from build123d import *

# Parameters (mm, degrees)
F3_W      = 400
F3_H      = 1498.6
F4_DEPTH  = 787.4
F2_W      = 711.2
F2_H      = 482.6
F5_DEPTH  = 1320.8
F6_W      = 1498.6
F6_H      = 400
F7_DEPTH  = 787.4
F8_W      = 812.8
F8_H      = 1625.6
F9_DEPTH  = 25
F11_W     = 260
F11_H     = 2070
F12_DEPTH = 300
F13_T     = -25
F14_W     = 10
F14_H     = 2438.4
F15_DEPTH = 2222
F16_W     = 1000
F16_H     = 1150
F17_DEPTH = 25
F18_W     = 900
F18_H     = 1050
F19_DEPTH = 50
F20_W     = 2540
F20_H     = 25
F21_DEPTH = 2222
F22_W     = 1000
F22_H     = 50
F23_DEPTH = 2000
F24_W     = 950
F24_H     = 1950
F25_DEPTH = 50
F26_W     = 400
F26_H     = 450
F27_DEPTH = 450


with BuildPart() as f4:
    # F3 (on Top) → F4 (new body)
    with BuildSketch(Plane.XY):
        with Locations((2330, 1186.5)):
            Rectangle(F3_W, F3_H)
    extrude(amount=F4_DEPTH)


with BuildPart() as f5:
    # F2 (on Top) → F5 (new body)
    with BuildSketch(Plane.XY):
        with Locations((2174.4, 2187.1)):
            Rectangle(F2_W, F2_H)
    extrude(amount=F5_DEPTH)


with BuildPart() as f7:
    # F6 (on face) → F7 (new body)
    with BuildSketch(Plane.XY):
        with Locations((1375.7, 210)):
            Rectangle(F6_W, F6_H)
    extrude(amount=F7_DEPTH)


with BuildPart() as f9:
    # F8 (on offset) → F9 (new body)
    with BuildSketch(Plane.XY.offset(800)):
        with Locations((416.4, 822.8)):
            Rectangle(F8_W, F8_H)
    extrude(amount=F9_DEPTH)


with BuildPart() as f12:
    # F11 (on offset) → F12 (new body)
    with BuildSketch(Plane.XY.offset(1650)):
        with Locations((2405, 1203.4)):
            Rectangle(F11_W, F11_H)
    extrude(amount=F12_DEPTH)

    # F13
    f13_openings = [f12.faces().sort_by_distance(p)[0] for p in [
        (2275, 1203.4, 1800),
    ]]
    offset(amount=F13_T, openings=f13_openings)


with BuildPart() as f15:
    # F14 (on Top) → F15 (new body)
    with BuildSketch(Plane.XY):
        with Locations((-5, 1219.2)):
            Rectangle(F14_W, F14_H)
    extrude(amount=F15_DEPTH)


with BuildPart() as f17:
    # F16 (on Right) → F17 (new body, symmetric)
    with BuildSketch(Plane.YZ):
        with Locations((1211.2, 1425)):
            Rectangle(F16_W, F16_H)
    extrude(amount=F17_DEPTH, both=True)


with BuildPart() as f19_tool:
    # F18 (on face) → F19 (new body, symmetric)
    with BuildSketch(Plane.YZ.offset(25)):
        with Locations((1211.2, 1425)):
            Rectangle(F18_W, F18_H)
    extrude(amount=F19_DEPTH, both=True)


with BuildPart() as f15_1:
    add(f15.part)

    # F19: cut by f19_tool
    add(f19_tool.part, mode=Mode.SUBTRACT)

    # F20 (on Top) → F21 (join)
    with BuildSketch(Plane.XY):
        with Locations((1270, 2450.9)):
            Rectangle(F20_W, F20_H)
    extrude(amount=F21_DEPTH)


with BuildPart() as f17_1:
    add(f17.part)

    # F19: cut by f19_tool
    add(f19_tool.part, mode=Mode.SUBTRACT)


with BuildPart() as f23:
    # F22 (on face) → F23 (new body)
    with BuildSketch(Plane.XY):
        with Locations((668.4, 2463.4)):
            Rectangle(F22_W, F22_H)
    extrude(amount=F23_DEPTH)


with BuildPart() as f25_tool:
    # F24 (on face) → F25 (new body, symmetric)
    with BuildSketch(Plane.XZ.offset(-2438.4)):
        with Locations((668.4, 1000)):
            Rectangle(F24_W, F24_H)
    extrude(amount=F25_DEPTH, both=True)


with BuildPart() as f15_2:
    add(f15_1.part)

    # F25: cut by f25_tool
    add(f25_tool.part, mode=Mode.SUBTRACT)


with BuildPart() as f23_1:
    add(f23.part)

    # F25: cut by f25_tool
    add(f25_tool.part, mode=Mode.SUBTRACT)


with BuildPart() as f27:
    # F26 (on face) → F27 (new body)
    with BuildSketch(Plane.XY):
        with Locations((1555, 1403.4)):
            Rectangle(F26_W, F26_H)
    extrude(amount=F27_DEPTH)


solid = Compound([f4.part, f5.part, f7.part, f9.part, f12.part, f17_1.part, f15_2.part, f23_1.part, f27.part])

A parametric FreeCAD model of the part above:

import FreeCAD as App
import Part
import Sketcher

V = App.Vector


def faces_at(feature, points):
    """Names of the faces that lie closest to the given points."""
    faces = feature.Shape.Faces
    near = lambda p: min(range(len(faces)), key=lambda i: faces[i].distToShape(Part.Vertex(*p))[0])
    return sorted({f"Face{near(p) + 1}" for p in points})

doc = App.newDocument("Part")
params = doc.addObject("Spreadsheet::Sheet", "Params")
for row, (alias, value) in enumerate([
    ("sketch1_width", "400 mm"),
    ("sketch1_height", "1498.6 mm"),
    ("pad1_length", "787.4 mm"),
    ("sketch2_width", "711.2 mm"),
    ("sketch2_height", "482.6 mm"),
    ("pad2_length", "1320.8 mm"),
    ("sketch3_height", "400 mm"),
    ("sketch3_width", "1498.6 mm"),
    ("pad3_length", "787.4 mm"),
    ("sketch4_width", "812.8 mm"),
    ("sketch4_height", "1625.6 mm"),
    ("pad4_length", "25 mm"),
    ("sketch5_width", "260 mm"),
    ("sketch5_height", "2070 mm"),
    ("pad5_length", "300 mm"),
    ("thickness_wall", "25 mm"),
    ("sketch6_width", "10 mm"),
    ("sketch6_height", "2438.4 mm"),
    ("pad6_length", "2222 mm"),
    ("sketch7_width", "1000 mm"),
    ("sketch7_height", "1150 mm"),
    ("pad7_length", "50 mm"),
    ("sketch8_width", "900 mm"),
    ("sketch8_height", "1050 mm"),
    ("pad8_length", "100 mm"),
    ("sketch9_width", "2540 mm"),
    ("sketch9_height", "25 mm"),
    ("pad9_length", "2222 mm"),
    ("sketch10_width", "1000 mm"),
    ("sketch10_height", "50 mm"),
    ("pad10_length", "2000 mm"),
    ("sketch11_width", "950 mm"),
    ("sketch11_height", "1950 mm"),
    ("pad11_length", "100 mm"),
    ("sketch12_width", "400 mm"),
    ("sketch12_height", "450 mm"),
    ("pad12_length", "450 mm"),
], start=1):
    params.set(f"A{row}", alias)
    params.set(f"B{row}", "=" + value)
    params.setAlias(f"B{row}", alias)

body = doc.addObject("PartDesign::Body", "Body")

# Sketch on XY plane
sketch1 = doc.addObject("Sketcher::SketchObject", "Sketch")
body.addObject(sketch1)
sketch1.AttachmentSupport = (doc.XY_Plane, [""])
sketch1.MapMode = "FlatFace"
sketch1.addGeometry(Part.LineSegment(V(2130, 1936, 0), V(2130, 437, 0)), False)
sketch1.addGeometry(Part.LineSegment(V(2130, 437, 0), V(2530, 437, 0)), False)
sketch1.addGeometry(Part.LineSegment(V(2530, 437, 0), V(2530, 1936, 0)), False)
sketch1.addGeometry(Part.LineSegment(V(2530, 1936, 0), V(2130, 1936, 0)), False)
sketch1.addConstraint(Sketcher.Constraint("Coincident", 0, 2, 1, 1))
sketch1.addConstraint(Sketcher.Constraint("Coincident", 1, 2, 2, 1))
sketch1.addConstraint(Sketcher.Constraint("Coincident", 2, 2, 3, 1))
sketch1.addConstraint(Sketcher.Constraint("Coincident", 3, 2, 0, 1))
sketch1.addConstraint(Sketcher.Constraint("Vertical", 0))
sketch1.addConstraint(Sketcher.Constraint("Horizontal", 1))
sketch1.addConstraint(Sketcher.Constraint("Vertical", 2))
sketch1.addConstraint(Sketcher.Constraint("Horizontal", 3))
sketch1.addConstraint(Sketcher.Constraint("DistanceX", 1, 1, 1, 2, 400.0))
sketch1.addConstraint(Sketcher.Constraint("DistanceY", 0, 2, 0, 1, 1498.6))
sketch1.addConstraint(Sketcher.Constraint("DistanceX", -1, 1, 0, 2, 2130.0))
sketch1.addConstraint(Sketcher.Constraint("DistanceY", -1, 1, 0, 2, 437.2))
sketch1.setExpression("Constraints[8]", "Params.sketch1_width")
sketch1.setExpression("Constraints[9]", "Params.sketch1_height")
pad1 = doc.addObject("PartDesign::Pad", "Pad")
body.addObject(pad1)
pad1.Profile = sketch1
pad1.setExpression("Length", "Params.pad1_length")
body2 = doc.addObject("PartDesign::Body", "Body001")

# Sketch on XY plane
sketch2 = doc.addObject("Sketcher::SketchObject", "Sketch001")
body2.addObject(sketch2)
sketch2.AttachmentSupport = (doc.getObject("XY_Plane001"), [""])
sketch2.MapMode = "FlatFace"
sketch2.addGeometry(Part.LineSegment(V(1819, 2428, 0), V(1819, 1946, 0)), False)
sketch2.addGeometry(Part.LineSegment(V(1819, 1946, 0), V(2530, 1946, 0)), False)
sketch2.addGeometry(Part.LineSegment(V(2530, 1946, 0), V(2530, 2428, 0)), False)
sketch2.addGeometry(Part.LineSegment(V(2530, 2428, 0), V(1819, 2428, 0)), False)
sketch2.addConstraint(Sketcher.Constraint("Coincident", 0, 2, 1, 1))
sketch2.addConstraint(Sketcher.Constraint("Coincident", 1, 2, 2, 1))
sketch2.addConstraint(Sketcher.Constraint("Coincident", 2, 2, 3, 1))
sketch2.addConstraint(Sketcher.Constraint("Coincident", 3, 2, 0, 1))
sketch2.addConstraint(Sketcher.Constraint("Vertical", 0))
sketch2.addConstraint(Sketcher.Constraint("Horizontal", 1))
sketch2.addConstraint(Sketcher.Constraint("Vertical", 2))
sketch2.addConstraint(Sketcher.Constraint("Horizontal", 3))
sketch2.addConstraint(Sketcher.Constraint("DistanceX", 1, 1, 1, 2, 711.2))
sketch2.addConstraint(Sketcher.Constraint("DistanceY", 0, 2, 0, 1, 482.6))
sketch2.addConstraint(Sketcher.Constraint("DistanceX", -1, 1, 1, 2, 2530.0))
sketch2.addConstraint(Sketcher.Constraint("DistanceY", -1, 1, 0, 2, 1945.8))
sketch2.setExpression("Constraints[8]", "Params.sketch2_width")
sketch2.setExpression("Constraints[9]", "Params.sketch2_height")
pad2 = doc.addObject("PartDesign::Pad", "Pad001")
body2.addObject(pad2)
pad2.Profile = sketch2
pad2.setExpression("Length", "Params.pad2_length")
body3 = doc.addObject("PartDesign::Body", "Body002")

# Sketch on XY plane
sketch3 = doc.addObject("Sketcher::SketchObject", "Sketch002")
body3.addObject(sketch3)
sketch3.AttachmentSupport = (doc.getObject("XY_Plane002"), [""])
sketch3.MapMode = "FlatFace"
sketch3.addGeometry(Part.LineSegment(V(626, 410, 0), V(626, 10, 0)), False)
sketch3.addGeometry(Part.LineSegment(V(626, 10, 0), V(2125, 10, 0)), False)
sketch3.addGeometry(Part.LineSegment(V(2125, 10, 0), V(2125, 410, 0)), False)
sketch3.addGeometry(Part.LineSegment(V(2125, 410, 0), V(626, 410, 0)), False)
sketch3.addConstraint(Sketcher.Constraint("Coincident", 0, 2, 1, 1))
sketch3.addConstraint(Sketcher.Constraint("Coincident", 1, 2, 2, 1))
sketch3.addConstraint(Sketcher.Constraint("Coincident", 2, 2, 3, 1))
sketch3.addConstraint(Sketcher.Constraint("Coincident", 3, 2, 0, 1))
sketch3.addConstraint(Sketcher.Constraint("Vertical", 0))
sketch3.addConstraint(Sketcher.Constraint("Horizontal", 1))
sketch3.addConstraint(Sketcher.Constraint("Vertical", 2))
sketch3.addConstraint(Sketcher.Constraint("Horizontal", 3))
sketch3.addConstraint(Sketcher.Constraint("DistanceY", 0, 2, 0, 1, 400.0))
sketch3.addConstraint(Sketcher.Constraint("DistanceX", 1, 1, 1, 2, 1498.6))
sketch3.addConstraint(Sketcher.Constraint("DistanceY", -1, 1, 0, 2, 10.0))
sketch3.addConstraint(Sketcher.Constraint("DistanceX", -1, 1, 1, 2, 2125.0))
sketch3.setExpression("Constraints[8]", "Params.sketch3_height")
sketch3.setExpression("Constraints[9]", "Params.sketch3_width")
pad3 = doc.addObject("PartDesign::Pad", "Pad002")
body3.addObject(pad3)
pad3.Profile = sketch3
pad3.setExpression("Length", "Params.pad3_length")
body4 = doc.addObject("PartDesign::Body", "Body003")

# Sketch on XY plane
sketch4 = doc.addObject("Sketcher::SketchObject", "Sketch003")
body4.addObject(sketch4)
sketch4.AttachmentSupport = (doc.getObject("XY_Plane003"), [""])
sketch4.MapMode = "FlatFace"
sketch4.AttachmentOffset = App.Placement(V(0, 0, 800), App.Rotation())
sketch4.addGeometry(Part.LineSegment(V(10, 1636, 0), V(10, 10, 0)), False)
sketch4.addGeometry(Part.LineSegment(V(10, 10, 0), V(823, 10, 0)), False)
sketch4.addGeometry(Part.LineSegment(V(823, 10, 0), V(823, 1636, 0)), False)
sketch4.addGeometry(Part.LineSegment(V(823, 1636, 0), V(10, 1636, 0)), False)
sketch4.addConstraint(Sketcher.Constraint("Coincident", 0, 2, 1, 1))
sketch4.addConstraint(Sketcher.Constraint("Coincident", 1, 2, 2, 1))
sketch4.addConstraint(Sketcher.Constraint("Coincident", 2, 2, 3, 1))
sketch4.addConstraint(Sketcher.Constraint("Coincident", 3, 2, 0, 1))
sketch4.addConstraint(Sketcher.Constraint("Vertical", 0))
sketch4.addConstraint(Sketcher.Constraint("Horizontal", 1))
sketch4.addConstraint(Sketcher.Constraint("Vertical", 2))
sketch4.addConstraint(Sketcher.Constraint("Horizontal", 3))
sketch4.addConstraint(Sketcher.Constraint("DistanceX", 1, 1, 1, 2, 812.8))
sketch4.addConstraint(Sketcher.Constraint("DistanceY", 0, 2, 0, 1, 1625.6))
sketch4.addConstraint(Sketcher.Constraint("DistanceX", -1, 1, 0, 2, 10.0))
sketch4.addConstraint(Sketcher.Constraint("DistanceY", -1, 1, 0, 2, 10.0))
sketch4.setExpression("Constraints[8]", "Params.sketch4_width")
sketch4.setExpression("Constraints[9]", "Params.sketch4_height")
pad4 = doc.addObject("PartDesign::Pad", "Pad003")
body4.addObject(pad4)
pad4.Profile = sketch4
pad4.setExpression("Length", "Params.pad4_length")
body5 = doc.addObject("PartDesign::Body", "Body004")

# Sketch on XY plane
sketch5 = doc.addObject("Sketcher::SketchObject", "Sketch004")
body5.addObject(sketch5)
sketch5.AttachmentSupport = (doc.getObject("XY_Plane004"), [""])
sketch5.MapMode = "FlatFace"
sketch5.AttachmentOffset = App.Placement(V(0, 0, 1650), App.Rotation())
sketch5.addGeometry(Part.LineSegment(V(2275, 2238, 0), V(2275, 168, 0)), False)
sketch5.addGeometry(Part.LineSegment(V(2275, 168, 0), V(2535, 168, 0)), False)
sketch5.addGeometry(Part.LineSegment(V(2535, 168, 0), V(2535, 2238, 0)), False)
sketch5.addGeometry(Part.LineSegment(V(2535, 2238, 0), V(2275, 2238, 0)), False)
sketch5.addConstraint(Sketcher.Constraint("Coincident", 0, 2, 1, 1))
sketch5.addConstraint(Sketcher.Constraint("Coincident", 1, 2, 2, 1))
sketch5.addConstraint(Sketcher.Constraint("Coincident", 2, 2, 3, 1))
sketch5.addConstraint(Sketcher.Constraint("Coincident", 3, 2, 0, 1))
sketch5.addConstraint(Sketcher.Constraint("Vertical", 0))
sketch5.addConstraint(Sketcher.Constraint("Horizontal", 1))
sketch5.addConstraint(Sketcher.Constraint("Vertical", 2))
sketch5.addConstraint(Sketcher.Constraint("Horizontal", 3))
sketch5.addConstraint(Sketcher.Constraint("DistanceX", 1, 1, 1, 2, 260.0))
sketch5.addConstraint(Sketcher.Constraint("DistanceY", 0, 2, 0, 1, 2070.0))
sketch5.addConstraint(Sketcher.Constraint("DistanceX", -1, 1, 0, 2, 2275.0))
sketch5.addConstraint(Sketcher.Constraint("DistanceY", -1, 1, 0, 2, 168.4))
sketch5.setExpression("Constraints[8]", "Params.sketch5_width")
sketch5.setExpression("Constraints[9]", "Params.sketch5_height")
pad5 = doc.addObject("PartDesign::Pad", "Pad004")
body5.addObject(pad5)
pad5.Profile = sketch5
pad5.setExpression("Length", "Params.pad5_length")
doc.recompute()

thickness = doc.addObject("PartDesign::Thickness", "Thickness")
body5.addObject(thickness)
thickness.Base = (pad5, faces_at(pad5, [(2275, 1203.4, 1800)]))
thickness.setExpression("Value", "Params.thickness_wall")
thickness.Reversed = True
thickness.Join = "Arc"
body6 = doc.addObject("PartDesign::Body", "Body005")

# Sketch on XY plane
sketch6 = doc.addObject("Sketcher::SketchObject", "Sketch005")
body6.addObject(sketch6)
sketch6.AttachmentSupport = (doc.getObject("XY_Plane005"), [""])
sketch6.MapMode = "FlatFace"
sketch6.addGeometry(Part.LineSegment(V(-10, 2438, 0), V(-10, 0, 0)), False)
sketch6.addGeometry(Part.LineSegment(V(-10, 0, 0), V(0, 0, 0)), False)
sketch6.addGeometry(Part.LineSegment(V(0, 0, 0), V(0, 2438, 0)), False)
sketch6.addGeometry(Part.LineSegment(V(0, 2438, 0), V(-10, 2438, 0)), False)
sketch6.addConstraint(Sketcher.Constraint("Coincident", 0, 2, 1, 1))
sketch6.addConstraint(Sketcher.Constraint("Coincident", 1, 2, 2, 1))
sketch6.addConstraint(Sketcher.Constraint("Coincident", 2, 2, 3, 1))
sketch6.addConstraint(Sketcher.Constraint("Coincident", 3, 2, 0, 1))
sketch6.addConstraint(Sketcher.Constraint("Vertical", 0))
sketch6.addConstraint(Sketcher.Constraint("Horizontal", 1))
sketch6.addConstraint(Sketcher.Constraint("Vertical", 2))
sketch6.addConstraint(Sketcher.Constraint("Horizontal", 3))
sketch6.addConstraint(Sketcher.Constraint("Coincident", 1, 2, -1, 1))
sketch6.addConstraint(Sketcher.Constraint("DistanceX", 1, 1, 1, 2, 10.0))
sketch6.addConstraint(Sketcher.Constraint("DistanceY", 0, 2, 0, 1, 2438.4))
sketch6.setExpression("Constraints[9]", "Params.sketch6_width")
sketch6.setExpression("Constraints[10]", "Params.sketch6_height")
pad6 = doc.addObject("PartDesign::Pad", "Pad005")
body6.addObject(pad6)
pad6.Profile = sketch6
pad6.setExpression("Length", "Params.pad6_length")
body7 = doc.addObject("PartDesign::Body", "Body006")

# Sketch on YZ plane
sketch7 = doc.addObject("Sketcher::SketchObject", "Sketch006")
body7.addObject(sketch7)
sketch7.AttachmentSupport = (doc.getObject("YZ_Plane006"), [""])
sketch7.MapMode = "FlatFace"
sketch7.addGeometry(Part.LineSegment(V(711, 2000, 0), V(711, 850, 0)), False)
sketch7.addGeometry(Part.LineSegment(V(711, 850, 0), V(1711, 850, 0)), False)
sketch7.addGeometry(Part.LineSegment(V(1711, 850, 0), V(1711, 2000, 0)), False)
sketch7.addGeometry(Part.LineSegment(V(1711, 2000, 0), V(711, 2000, 0)), False)
sketch7.addConstraint(Sketcher.Constraint("Coincident", 0, 2, 1, 1))
sketch7.addConstraint(Sketcher.Constraint("Coincident", 1, 2, 2, 1))
sketch7.addConstraint(Sketcher.Constraint("Coincident", 2, 2, 3, 1))
sketch7.addConstraint(Sketcher.Constraint("Coincident", 3, 2, 0, 1))
sketch7.addConstraint(Sketcher.Constraint("Vertical", 0))
sketch7.addConstraint(Sketcher.Constraint("Horizontal", 1))
sketch7.addConstraint(Sketcher.Constraint("Vertical", 2))
sketch7.addConstraint(Sketcher.Constraint("Horizontal", 3))
sketch7.addConstraint(Sketcher.Constraint("DistanceX", 1, 1, 1, 2, 1000.0))
sketch7.addConstraint(Sketcher.Constraint("DistanceY", 0, 2, 0, 1, 1150.0))
sketch7.addConstraint(Sketcher.Constraint("DistanceY", -1, 1, 0, 2, 850.0))
sketch7.addConstraint(Sketcher.Constraint("DistanceX", -1, 1, 0, 2, 711.2))
sketch7.setExpression("Constraints[8]", "Params.sketch7_width")
sketch7.setExpression("Constraints[9]", "Params.sketch7_height")
pad7 = doc.addObject("PartDesign::Pad", "Pad006")
body7.addObject(pad7)
pad7.Profile = sketch7
pad7.setExpression("Length", "Params.pad7_length")
pad7.Midplane = True
body8 = doc.addObject("PartDesign::Body", "Body007")

# Sketch on YZ plane
sketch8 = doc.addObject("Sketcher::SketchObject", "Sketch007")
body8.addObject(sketch8)
sketch8.AttachmentSupport = (doc.getObject("YZ_Plane007"), [""])
sketch8.MapMode = "FlatFace"
sketch8.AttachmentOffset = App.Placement(V(0, 0, 25), App.Rotation())
sketch8.addGeometry(Part.LineSegment(V(761, 1950, 0), V(761, 900, 0)), False)
sketch8.addGeometry(Part.LineSegment(V(761, 900, 0), V(1661, 900, 0)), False)
sketch8.addGeometry(Part.LineSegment(V(1661, 900, 0), V(1661, 1950, 0)), False)
sketch8.addGeometry(Part.LineSegment(V(1661, 1950, 0), V(761, 1950, 0)), False)
sketch8.addConstraint(Sketcher.Constraint("Coincident", 0, 2, 1, 1))
sketch8.addConstraint(Sketcher.Constraint("Coincident", 1, 2, 2, 1))
sketch8.addConstraint(Sketcher.Constraint("Coincident", 2, 2, 3, 1))
sketch8.addConstraint(Sketcher.Constraint("Coincident", 3, 2, 0, 1))
sketch8.addConstraint(Sketcher.Constraint("Vertical", 0))
sketch8.addConstraint(Sketcher.Constraint("Horizontal", 1))
sketch8.addConstraint(Sketcher.Constraint("Vertical", 2))
sketch8.addConstraint(Sketcher.Constraint("Horizontal", 3))
sketch8.addConstraint(Sketcher.Constraint("DistanceX", 1, 1, 1, 2, 900.0))
sketch8.addConstraint(Sketcher.Constraint("DistanceY", 0, 2, 0, 1, 1050.0))
sketch8.addConstraint(Sketcher.Constraint("DistanceY", -1, 1, 0, 2, 900.0))
sketch8.addConstraint(Sketcher.Constraint("DistanceX", -1, 1, 0, 2, 761.2))
sketch8.setExpression("Constraints[8]", "Params.sketch8_width")
sketch8.setExpression("Constraints[9]", "Params.sketch8_height")
pad8 = doc.addObject("PartDesign::Pad", "Pad007")
body8.addObject(pad8)
pad8.Profile = sketch8
pad8.setExpression("Length", "Params.pad8_length")
pad8.Midplane = True
body6.AllowCompound = True
doc.recompute()

body9 = doc.addObject("PartDesign::Body", "Body008")
body9.BaseFeature = body8
boolean = doc.addObject("PartDesign::Boolean", "Boolean")
body6.addObject(boolean)
boolean.Type = "Cut"
boolean.addObjects([body9])
doc.recompute()

# Sketch on XY plane
sketch9 = doc.addObject("Sketcher::SketchObject", "Sketch008")
body6.addObject(sketch9)
sketch9.AttachmentSupport = (doc.getObject("XY_Plane005"), [""])
sketch9.MapMode = "FlatFace"
sketch9.addGeometry(Part.LineSegment(V(0, 2463, 0), V(0, 2438, 0)), False)
sketch9.addGeometry(Part.LineSegment(V(0, 2438, 0), V(2540, 2438, 0)), False)
sketch9.addGeometry(Part.LineSegment(V(2540, 2438, 0), V(2540, 2463, 0)), False)
sketch9.addGeometry(Part.LineSegment(V(2540, 2463, 0), V(0, 2463, 0)), False)
sketch9.addConstraint(Sketcher.Constraint("Coincident", 0, 2, 1, 1))
sketch9.addConstraint(Sketcher.Constraint("Coincident", 1, 2, 2, 1))
sketch9.addConstraint(Sketcher.Constraint("Coincident", 2, 2, 3, 1))
sketch9.addConstraint(Sketcher.Constraint("Coincident", 3, 2, 0, 1))
sketch9.addConstraint(Sketcher.Constraint("Vertical", 0))
sketch9.addConstraint(Sketcher.Constraint("Horizontal", 1))
sketch9.addConstraint(Sketcher.Constraint("Vertical", 2))
sketch9.addConstraint(Sketcher.Constraint("Horizontal", 3))
sketch9.addConstraint(Sketcher.Constraint("PointOnObject", 0, 2, -2))
sketch9.addConstraint(Sketcher.Constraint("DistanceX", 1, 1, 1, 2, 2540.0))
sketch9.addConstraint(Sketcher.Constraint("DistanceY", 0, 2, 0, 1, 25.0))
sketch9.addConstraint(Sketcher.Constraint("DistanceY", -1, 1, 0, 2, 2438.4))
sketch9.setExpression("Constraints[9]", "Params.sketch9_width")
sketch9.setExpression("Constraints[10]", "Params.sketch9_height")
pad9 = doc.addObject("PartDesign::Pad", "Pad008")
body6.addObject(pad9)
pad9.Profile = sketch9
pad9.setExpression("Length", "Params.pad9_length")
doc.recompute()

boolean2 = doc.addObject("PartDesign::Boolean", "Boolean001")
body7.addObject(boolean2)
boolean2.Type = "Cut"
boolean2.addObjects([body8])
body10 = doc.addObject("PartDesign::Body", "Body009")

# Sketch on XY plane
sketch10 = doc.addObject("Sketcher::SketchObject", "Sketch009")
body10.addObject(sketch10)
sketch10.AttachmentSupport = (doc.getObject("XY_Plane009"), [""])
sketch10.MapMode = "FlatFace"
sketch10.addGeometry(Part.LineSegment(V(168, 2488, 0), V(168, 2438, 0)), False)
sketch10.addGeometry(Part.LineSegment(V(168, 2438, 0), V(1168, 2438, 0)), False)
sketch10.addGeometry(Part.LineSegment(V(1168, 2438, 0), V(1168, 2488, 0)), False)
sketch10.addGeometry(Part.LineSegment(V(1168, 2488, 0), V(168, 2488, 0)), False)
sketch10.addConstraint(Sketcher.Constraint("Coincident", 0, 2, 1, 1))
sketch10.addConstraint(Sketcher.Constraint("Coincident", 1, 2, 2, 1))
sketch10.addConstraint(Sketcher.Constraint("Coincident", 2, 2, 3, 1))
sketch10.addConstraint(Sketcher.Constraint("Coincident", 3, 2, 0, 1))
sketch10.addConstraint(Sketcher.Constraint("Vertical", 0))
sketch10.addConstraint(Sketcher.Constraint("Horizontal", 1))
sketch10.addConstraint(Sketcher.Constraint("Vertical", 2))
sketch10.addConstraint(Sketcher.Constraint("Horizontal", 3))
sketch10.addConstraint(Sketcher.Constraint("DistanceX", 1, 1, 1, 2, 1000.0))
sketch10.addConstraint(Sketcher.Constraint("DistanceY", 0, 2, 0, 1, 50.0))
sketch10.addConstraint(Sketcher.Constraint("DistanceX", -1, 1, 0, 2, 168.4))
sketch10.addConstraint(Sketcher.Constraint("DistanceY", -1, 1, 0, 2, 2438.4))
sketch10.setExpression("Constraints[8]", "Params.sketch10_width")
sketch10.setExpression("Constraints[9]", "Params.sketch10_height")
pad10 = doc.addObject("PartDesign::Pad", "Pad009")
body10.addObject(pad10)
pad10.Profile = sketch10
pad10.setExpression("Length", "Params.pad10_length")
body11 = doc.addObject("PartDesign::Body", "Body010")

# Sketch on XZ plane
sketch11 = doc.addObject("Sketcher::SketchObject", "Sketch010")
body11.addObject(sketch11)
sketch11.AttachmentSupport = (doc.getObject("XZ_Plane010"), [""])
sketch11.MapMode = "FlatFace"
sketch11.AttachmentOffset = App.Placement(V(0, 0, -2438.4), App.Rotation())
sketch11.addGeometry(Part.LineSegment(V(193, 1975, 0), V(193, 25, 0)), False)
sketch11.addGeometry(Part.LineSegment(V(193, 25, 0), V(1143, 25, 0)), False)
sketch11.addGeometry(Part.LineSegment(V(1143, 25, 0), V(1143, 1975, 0)), False)
sketch11.addGeometry(Part.LineSegment(V(1143, 1975, 0), V(193, 1975, 0)), False)
sketch11.addConstraint(Sketcher.Constraint("Coincident", 0, 2, 1, 1))
sketch11.addConstraint(Sketcher.Constraint("Coincident", 1, 2, 2, 1))
sketch11.addConstraint(Sketcher.Constraint("Coincident", 2, 2, 3, 1))
sketch11.addConstraint(Sketcher.Constraint("Coincident", 3, 2, 0, 1))
sketch11.addConstraint(Sketcher.Constraint("Vertical", 0))
sketch11.addConstraint(Sketcher.Constraint("Horizontal", 1))
sketch11.addConstraint(Sketcher.Constraint("Vertical", 2))
sketch11.addConstraint(Sketcher.Constraint("Horizontal", 3))
sketch11.addConstraint(Sketcher.Constraint("DistanceX", 1, 1, 1, 2, 950.0))
sketch11.addConstraint(Sketcher.Constraint("DistanceY", 0, 2, 0, 1, 1950.0))
sketch11.addConstraint(Sketcher.Constraint("DistanceY", -1, 1, 0, 2, 25.0))
sketch11.addConstraint(Sketcher.Constraint("DistanceX", -1, 1, 0, 2, 193.4))
sketch11.setExpression("Constraints[8]", "Params.sketch11_width")
sketch11.setExpression("Constraints[9]", "Params.sketch11_height")
pad11 = doc.addObject("PartDesign::Pad", "Pad010")
body11.addObject(pad11)
pad11.Profile = sketch11
pad11.setExpression("Length", "Params.pad11_length")
pad11.Midplane = True
body6.AllowCompound = True
doc.recompute()

body12 = doc.addObject("PartDesign::Body", "Body011")
body12.BaseFeature = body11
boolean3 = doc.addObject("PartDesign::Boolean", "Boolean002")
body6.addObject(boolean3)
boolean3.Type = "Cut"
boolean3.addObjects([body12])
doc.recompute()

boolean4 = doc.addObject("PartDesign::Boolean", "Boolean003")
body10.addObject(boolean4)
boolean4.Type = "Cut"
boolean4.addObjects([body11])
body13 = doc.addObject("PartDesign::Body", "Body012")

# Sketch on XY plane
sketch12 = doc.addObject("Sketcher::SketchObject", "Sketch011")
body13.addObject(sketch12)
sketch12.AttachmentSupport = (doc.getObject("XY_Plane012"), [""])
sketch12.MapMode = "FlatFace"
sketch12.addGeometry(Part.LineSegment(V(1355, 1628, 0), V(1355, 1178, 0)), False)
sketch12.addGeometry(Part.LineSegment(V(1355, 1178, 0), V(1755, 1178, 0)), False)
sketch12.addGeometry(Part.LineSegment(V(1755, 1178, 0), V(1755, 1628, 0)), False)
sketch12.addGeometry(Part.LineSegment(V(1755, 1628, 0), V(1355, 1628, 0)), False)
sketch12.addConstraint(Sketcher.Constraint("Coincident", 0, 2, 1, 1))
sketch12.addConstraint(Sketcher.Constraint("Coincident", 1, 2, 2, 1))
sketch12.addConstraint(Sketcher.Constraint("Coincident", 2, 2, 3, 1))
sketch12.addConstraint(Sketcher.Constraint("Coincident", 3, 2, 0, 1))
sketch12.addConstraint(Sketcher.Constraint("Vertical", 0))
sketch12.addConstraint(Sketcher.Constraint("Horizontal", 1))
sketch12.addConstraint(Sketcher.Constraint("Vertical", 2))
sketch12.addConstraint(Sketcher.Constraint("Horizontal", 3))
sketch12.addConstraint(Sketcher.Constraint("DistanceX", 1, 1, 1, 2, 400.0))
sketch12.addConstraint(Sketcher.Constraint("DistanceY", 0, 2, 0, 1, 450.0))
sketch12.addConstraint(Sketcher.Constraint("DistanceX", -1, 1, 0, 2, 1355.0))
sketch12.addConstraint(Sketcher.Constraint("DistanceY", -1, 1, 0, 2, 1178.4))
sketch12.setExpression("Constraints[8]", "Params.sketch12_width")
sketch12.setExpression("Constraints[9]", "Params.sketch12_height")
pad12 = doc.addObject("PartDesign::Pad", "Pad011")
body13.addObject(pad12)
pad12.Profile = sketch12
pad12.setExpression("Length", "Params.pad12_length")

doc.recompute()
